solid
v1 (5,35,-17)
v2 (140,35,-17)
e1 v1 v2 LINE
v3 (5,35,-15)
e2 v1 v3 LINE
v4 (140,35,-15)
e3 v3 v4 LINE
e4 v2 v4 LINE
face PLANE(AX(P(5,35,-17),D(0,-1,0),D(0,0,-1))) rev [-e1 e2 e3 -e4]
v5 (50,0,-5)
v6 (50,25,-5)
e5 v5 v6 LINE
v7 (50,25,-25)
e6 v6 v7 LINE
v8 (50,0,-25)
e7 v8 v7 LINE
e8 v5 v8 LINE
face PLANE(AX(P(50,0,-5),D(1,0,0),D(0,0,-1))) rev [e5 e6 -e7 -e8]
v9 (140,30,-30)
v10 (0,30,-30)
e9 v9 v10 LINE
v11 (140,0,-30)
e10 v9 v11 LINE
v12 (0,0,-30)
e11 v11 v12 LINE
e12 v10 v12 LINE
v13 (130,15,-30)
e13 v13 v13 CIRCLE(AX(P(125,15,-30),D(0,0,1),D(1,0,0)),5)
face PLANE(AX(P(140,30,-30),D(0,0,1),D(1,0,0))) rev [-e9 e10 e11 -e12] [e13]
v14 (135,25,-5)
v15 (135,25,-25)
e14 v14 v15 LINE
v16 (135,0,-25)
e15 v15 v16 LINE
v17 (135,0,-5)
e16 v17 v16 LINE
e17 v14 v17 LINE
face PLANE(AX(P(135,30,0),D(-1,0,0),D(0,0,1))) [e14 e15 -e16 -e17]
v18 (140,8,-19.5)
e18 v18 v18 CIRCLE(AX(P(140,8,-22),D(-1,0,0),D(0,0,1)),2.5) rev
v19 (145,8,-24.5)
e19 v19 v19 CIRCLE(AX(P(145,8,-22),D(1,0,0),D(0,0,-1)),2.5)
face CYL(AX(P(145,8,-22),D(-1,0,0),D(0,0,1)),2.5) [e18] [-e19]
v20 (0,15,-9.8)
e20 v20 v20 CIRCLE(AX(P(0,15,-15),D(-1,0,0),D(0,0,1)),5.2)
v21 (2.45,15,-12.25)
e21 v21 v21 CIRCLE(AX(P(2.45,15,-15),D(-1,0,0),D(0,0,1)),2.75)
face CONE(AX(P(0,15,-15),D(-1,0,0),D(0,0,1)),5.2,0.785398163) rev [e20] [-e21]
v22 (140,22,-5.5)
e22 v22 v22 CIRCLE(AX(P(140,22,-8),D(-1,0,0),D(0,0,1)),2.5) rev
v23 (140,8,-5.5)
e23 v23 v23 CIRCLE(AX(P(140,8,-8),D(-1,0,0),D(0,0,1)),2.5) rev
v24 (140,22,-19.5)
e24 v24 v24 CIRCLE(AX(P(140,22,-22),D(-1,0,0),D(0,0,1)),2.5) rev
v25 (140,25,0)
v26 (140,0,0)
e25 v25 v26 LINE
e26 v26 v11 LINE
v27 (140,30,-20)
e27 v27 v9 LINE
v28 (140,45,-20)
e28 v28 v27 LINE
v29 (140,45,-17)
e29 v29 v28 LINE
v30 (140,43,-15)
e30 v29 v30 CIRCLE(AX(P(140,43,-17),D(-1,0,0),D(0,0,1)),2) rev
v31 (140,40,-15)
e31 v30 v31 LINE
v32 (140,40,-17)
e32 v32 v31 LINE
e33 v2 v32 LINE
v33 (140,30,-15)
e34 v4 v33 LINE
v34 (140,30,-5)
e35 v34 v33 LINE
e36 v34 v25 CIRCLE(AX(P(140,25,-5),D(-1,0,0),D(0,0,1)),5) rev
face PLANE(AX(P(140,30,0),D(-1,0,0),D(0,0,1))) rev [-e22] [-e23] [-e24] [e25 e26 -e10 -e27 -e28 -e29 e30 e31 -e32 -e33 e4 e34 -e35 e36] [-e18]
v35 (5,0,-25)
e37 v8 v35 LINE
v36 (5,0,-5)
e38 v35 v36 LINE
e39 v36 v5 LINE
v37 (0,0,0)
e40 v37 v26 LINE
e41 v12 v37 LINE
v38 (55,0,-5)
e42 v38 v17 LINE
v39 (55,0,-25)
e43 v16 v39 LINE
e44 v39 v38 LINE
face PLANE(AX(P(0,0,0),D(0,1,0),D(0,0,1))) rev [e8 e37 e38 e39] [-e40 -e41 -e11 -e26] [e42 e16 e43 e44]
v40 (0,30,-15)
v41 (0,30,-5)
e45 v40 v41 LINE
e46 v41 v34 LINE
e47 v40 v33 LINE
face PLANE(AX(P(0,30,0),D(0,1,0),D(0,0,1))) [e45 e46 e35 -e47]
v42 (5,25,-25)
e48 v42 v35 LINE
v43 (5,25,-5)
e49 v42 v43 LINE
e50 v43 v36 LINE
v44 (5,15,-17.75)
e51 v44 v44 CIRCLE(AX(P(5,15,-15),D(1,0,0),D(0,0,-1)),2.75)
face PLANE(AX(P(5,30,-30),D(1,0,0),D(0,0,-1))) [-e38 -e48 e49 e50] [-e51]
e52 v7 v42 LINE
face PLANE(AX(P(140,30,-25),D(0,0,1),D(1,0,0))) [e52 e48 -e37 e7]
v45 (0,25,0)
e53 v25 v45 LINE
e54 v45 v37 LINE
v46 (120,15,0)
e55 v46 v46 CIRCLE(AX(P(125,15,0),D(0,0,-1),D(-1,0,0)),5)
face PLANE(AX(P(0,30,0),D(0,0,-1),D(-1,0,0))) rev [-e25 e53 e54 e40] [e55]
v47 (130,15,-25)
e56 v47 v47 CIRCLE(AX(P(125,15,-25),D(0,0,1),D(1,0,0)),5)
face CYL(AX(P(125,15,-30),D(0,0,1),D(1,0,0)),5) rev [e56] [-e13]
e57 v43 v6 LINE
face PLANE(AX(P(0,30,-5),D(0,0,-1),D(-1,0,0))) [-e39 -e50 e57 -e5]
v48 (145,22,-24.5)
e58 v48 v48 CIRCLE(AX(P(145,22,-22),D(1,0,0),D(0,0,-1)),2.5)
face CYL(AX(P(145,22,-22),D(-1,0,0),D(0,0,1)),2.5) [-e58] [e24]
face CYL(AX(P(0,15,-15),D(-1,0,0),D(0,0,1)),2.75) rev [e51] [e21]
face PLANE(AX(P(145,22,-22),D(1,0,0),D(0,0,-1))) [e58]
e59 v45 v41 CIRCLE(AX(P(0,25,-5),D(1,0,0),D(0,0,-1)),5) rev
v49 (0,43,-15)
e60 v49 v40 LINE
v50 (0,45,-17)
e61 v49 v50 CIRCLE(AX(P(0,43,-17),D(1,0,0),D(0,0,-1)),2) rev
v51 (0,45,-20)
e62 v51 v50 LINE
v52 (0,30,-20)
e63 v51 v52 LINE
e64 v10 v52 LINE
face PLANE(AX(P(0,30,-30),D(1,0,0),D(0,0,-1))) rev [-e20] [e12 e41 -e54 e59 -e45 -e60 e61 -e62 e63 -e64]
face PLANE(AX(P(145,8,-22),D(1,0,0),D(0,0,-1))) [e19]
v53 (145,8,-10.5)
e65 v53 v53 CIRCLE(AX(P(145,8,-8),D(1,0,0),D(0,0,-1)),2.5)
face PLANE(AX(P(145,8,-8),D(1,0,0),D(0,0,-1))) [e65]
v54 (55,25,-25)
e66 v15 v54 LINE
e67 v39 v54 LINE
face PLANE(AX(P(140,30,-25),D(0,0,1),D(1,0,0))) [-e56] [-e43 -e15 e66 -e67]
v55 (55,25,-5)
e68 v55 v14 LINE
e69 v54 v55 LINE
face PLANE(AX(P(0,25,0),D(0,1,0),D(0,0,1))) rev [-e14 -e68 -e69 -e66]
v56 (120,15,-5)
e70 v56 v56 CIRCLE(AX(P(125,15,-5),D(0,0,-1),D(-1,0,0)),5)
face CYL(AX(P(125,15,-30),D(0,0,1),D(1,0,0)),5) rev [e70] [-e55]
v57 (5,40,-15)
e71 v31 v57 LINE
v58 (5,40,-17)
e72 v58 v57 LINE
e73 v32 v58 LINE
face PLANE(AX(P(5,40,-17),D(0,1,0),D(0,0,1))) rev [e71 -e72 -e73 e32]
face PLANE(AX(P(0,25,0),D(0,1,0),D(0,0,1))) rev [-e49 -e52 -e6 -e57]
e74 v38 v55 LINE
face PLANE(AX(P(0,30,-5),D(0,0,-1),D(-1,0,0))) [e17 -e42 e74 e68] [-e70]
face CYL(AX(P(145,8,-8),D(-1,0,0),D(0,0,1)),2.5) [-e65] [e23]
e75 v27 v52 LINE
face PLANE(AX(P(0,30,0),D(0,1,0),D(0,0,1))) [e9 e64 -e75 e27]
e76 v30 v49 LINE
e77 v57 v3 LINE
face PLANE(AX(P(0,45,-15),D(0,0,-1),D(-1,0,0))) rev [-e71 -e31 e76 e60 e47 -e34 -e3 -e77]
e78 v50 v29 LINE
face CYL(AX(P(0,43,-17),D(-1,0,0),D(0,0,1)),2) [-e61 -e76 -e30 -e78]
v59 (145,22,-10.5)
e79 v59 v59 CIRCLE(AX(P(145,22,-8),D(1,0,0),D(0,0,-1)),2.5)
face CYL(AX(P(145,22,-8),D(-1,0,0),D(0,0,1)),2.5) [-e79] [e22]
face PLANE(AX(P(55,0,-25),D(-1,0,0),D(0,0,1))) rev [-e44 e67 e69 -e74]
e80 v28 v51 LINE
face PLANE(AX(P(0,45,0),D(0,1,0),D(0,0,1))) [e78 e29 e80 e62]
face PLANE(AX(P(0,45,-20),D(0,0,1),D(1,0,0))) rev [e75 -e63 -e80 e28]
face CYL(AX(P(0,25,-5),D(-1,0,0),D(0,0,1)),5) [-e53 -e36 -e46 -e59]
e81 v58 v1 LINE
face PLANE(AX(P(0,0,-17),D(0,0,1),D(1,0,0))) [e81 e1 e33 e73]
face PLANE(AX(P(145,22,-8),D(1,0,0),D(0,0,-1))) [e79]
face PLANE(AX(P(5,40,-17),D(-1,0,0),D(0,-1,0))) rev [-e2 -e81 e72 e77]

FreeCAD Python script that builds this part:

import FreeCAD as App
import Part
import Sketcher
from FreeCAD import Vector


def edges_at(feature, points):
    """Names of the edges that pass closest to the given points."""
    edges = feature.Shape.Edges
    near = lambda p: min(range(len(edges)), key=lambda i: edges[i].distToShape(Part.Vertex(*p))[0])
    return sorted({f"Edge{near(p) + 1}" for p in points})


def faces_at(feature, points):
    """Names of the faces that lie closest to the given points."""
    faces = feature.Shape.Faces
    near = lambda p: min(range(len(faces)), key=lambda i: faces[i].distToShape(Part.Vertex(*p))[0])
    return sorted({f"Face{near(p) + 1}" for p in points})


def add_polygon(sketch, points):
    """Adds a closed chain of lines whose ends are joined by coincident constraints."""
    first, n = sketch.GeometryCount, len(points)
    for a, b in zip(points, points[1:] + points[:1]):
        sketch.addGeometry(Part.LineSegment(App.Vector(*a, 0), App.Vector(*b, 0)), False)
    for i in range(n):
        sketch.addConstraint(Sketcher.Constraint("Coincident", first + i, 2, first + (i + 1) % n, 1))

doc = App.newDocument("Part")
params = doc.addObject("Spreadsheet::Sheet", "Params")
for row, (alias, value) in enumerate([
    ("sketch1_width", "140 mm"),
    ("sketch1_height", "30 mm"),
    ("pad1_length", "30 mm"),
    ("thickness_wall", "5 mm"),
    ("sketch2_width", "5 mm"),
    ("sketch2_height", "20 mm"),
    ("pad2_length", "25 mm"),
    ("sketch3_diameter", "5 mm"),
    ("pad3_length", "5 mm"),
    ("sketch4_diameter", "3 mm"),
    ("pocket1_length", "20 mm"),
    ("sketch5_diameter", "10 mm"),
    ("sketch6_width", "140 mm"),
    ("sketch6_height", "5 mm"),
    ("pad4_length", "15 mm"),
    ("sketch7_width", "135 mm"),
    ("sketch7_height", "5 mm"),
    ("pocket3_length", "2 mm"),
    ("fillet_radius", "2 mm"),
    ("sketch8_diameter", "5.5 mm"),
    ("hole_diameter", "5.5 mm"),
    ("hole_depth", "20 mm"),
    ("hole_csink_diameter", "10.4 mm"),
    ("fillet2_radius", "5 mm"),
], start=1):
    params.set(f"A{row}", alias)
    params.set(f"B{row}", "=" + value)
    params.setAlias(f"B{row}", alias)

body = doc.addObject("PartDesign::Body", "Body")

# Sketch on XZ plane
sketch1 = doc.addObject("Sketcher::SketchObject", "Sketch")
body.addObject(sketch1)
sketch1.AttachmentSupport = (doc.XZ_Plane, [""])
sketch1.MapMode = "FlatFace"
add_polygon(sketch1, [(0, -30), (0, 0), (140, 0), (140, -30)])  # lines 0-3
sketch1.addConstraint([
    Sketcher.Constraint("Vertical", 0),
    Sketcher.Constraint("Horizontal", 1),
    Sketcher.Constraint("Vertical", 2),
    Sketcher.Constraint("Horizontal", 3),
    Sketcher.Constraint("Coincident", 0, 2, -1, 1),
    Sketcher.Constraint("DistanceX", 1, 1, 1, 2, 140.0),
    Sketcher.Constraint("DistanceY", 0, 1, 0, 2, 30.0),
])
sketch1.setExpression("Constraints[9]", "Params.sketch1_width")
sketch1.setExpression("Constraints[10]", "Params.sketch1_height")
pad1 = doc.addObject("PartDesign::Pad", "Pad")
body.addObject(pad1)
pad1.Profile = sketch1
pad1.setExpression("Length", "Params.pad1_length")
pad1.Reversed = True
doc.recompute()

thickness = doc.addObject("PartDesign::Thickness", "Thickness")
body.addObject(thickness)
thickness.Base = (pad1, faces_at(pad1, [(70, 0, -15)]))
thickness.setExpression("Value", "Params.thickness_wall")
thickness.Reversed = True
thickness.Join = "Intersection"

# Sketch on XZ plane
sketch2 = doc.addObject("Sketcher::SketchObject", "Sketch001")
body.addObject(sketch2)
sketch2.AttachmentSupport = (doc.XZ_Plane, [""])
sketch2.MapMode = "FlatFace"
sketch2.AttachmentOffset = App.Placement(Vector(0, 0, -25), App.Rotation())
add_polygon(sketch2, [(50, -5), (50, -25), (55, -25), (55, -5)])  # lines 0-3
sketch2.addConstraint([
    Sketcher.Constraint("Vertical", 0),
    Sketcher.Constraint("Horizontal", 1),
    Sketcher.Constraint("Vertical", 2),
    Sketcher.Constraint("Horizontal", 3),
    Sketcher.Constraint("DistanceX", 1, 1, 1, 2, 5.0),
    Sketcher.Constraint("DistanceY", 0, 2, 0, 1, 20.0),
    Sketcher.Constraint("DistanceX", -1, 1, 0, 2, 50.0),
    Sketcher.Constraint("DistanceY", 0, 2, -1, 1, 25.0),
])
sketch2.setExpression("Constraints[8]", "Params.sketch2_width")
sketch2.setExpression("Constraints[9]", "Params.sketch2_height")
pad2 = doc.addObject("PartDesign::Pad", "Pad001")
body.addObject(pad2)
pad2.Profile = sketch2
pad2.setExpression("Length", "Params.pad2_length")

# Sketch on YZ plane
sketch3 = doc.addObject("Sketcher::SketchObject", "Sketch002")
body.addObject(sketch3)
sketch3.AttachmentSupport = (doc.YZ_Plane, [""])
sketch3.MapMode = "FlatFace"
sketch3.AttachmentOffset = App.Placement(Vector(0, 0, 140), App.Rotation())
sketch3.addGeometry([
    Part.Circle(Vector(22, -8, 0), Vector(0, 0, 1), 2.5),
    Part.Circle(Vector(22, -22, 0), Vector(0, 0, 1), 2.5),
    Part.Circle(Vector(8, -8, 0), Vector(0, 0, 1), 2.5),
    Part.Circle(Vector(8, -22, 0), Vector(0, 0, 1), 2.5),
], False)
sketch3.addConstraint([
    Sketcher.Constraint("Equal", 0, 1),
    Sketcher.Constraint("Equal", 1, 2),
    Sketcher.Constraint("Equal", 2, 3),
    Sketcher.Constraint("Horizontal", 0, 3, 2, 3),
    Sketcher.Constraint("Horizontal", 1, 3, 3, 3),
    Sketcher.Constraint("Vertical", 0, 3, 1, 3),
    Sketcher.Constraint("Vertical", 2, 3, 3, 3),
    Sketcher.Constraint("Diameter", 0, 5.0),
    Sketcher.Constraint("DistanceX", -1, 1, 0, 3, 22.0),
    Sketcher.Constraint("DistanceY", 0, 3, -1, 1, 8.0),
    Sketcher.Constraint("DistanceY", 1, 3, -1, 1, 22.0),
    Sketcher.Constraint("DistanceX", -1, 1, 2, 3, 8.0),
])
sketch3.setExpression("Constraints[7]", "Params.sketch3_diameter")
pad3 = doc.addObject("PartDesign::Pad", "Pad002")
body.addObject(pad3)
pad3.Profile = sketch3
pad3.setExpression("Length", "Params.pad3_length")

# Sketch on YZ plane
sketch4 = doc.addObject("Sketcher::SketchObject", "Sketch003")
body.addObject(sketch4)
sketch4.AttachmentSupport = (doc.YZ_Plane, [""])
sketch4.MapMode = "FlatFace"
sketch4.addGeometry(Part.Circle(Vector(15, -15, 0), Vector(0, 0, 1), 1.5), False)
sketch4.addConstraint([
    Sketcher.Constraint("Diameter", 0, 3.0),
    Sketcher.Constraint("DistanceX", -1, 1, 0, 3, 15.0),
    Sketcher.Constraint("DistanceY", 0, 3, -1, 1, 15.0),
])
sketch4.setExpression("Constraints[0]", "Params.sketch4_diameter")
pocket1 = doc.addObject("PartDesign::Pocket", "Pocket")
body.addObject(pocket1)
pocket1.Profile = sketch4
pocket1.setExpression("Length", "Params.pocket1_length")
pocket1.Reversed = True

# Sketch on XY plane
sketch5 = doc.addObject("Sketcher::SketchObject", "Sketch004")
body.addObject(sketch5)
sketch5.AttachmentSupport = (doc.XY_Plane, [""])
sketch5.MapMode = "FlatFace"
sketch5.addGeometry(Part.Circle(Vector(125, 15, 0), Vector(0, 0, 1), 5), False)
sketch5.addConstraint([
    Sketcher.Constraint("Diameter", 0, 10.0),
    Sketcher.Constraint("DistanceX", -1, 1, 0, 3, 125.0),
    Sketcher.Constraint("DistanceY", -1, 1, 0, 3, 15.0),
])
sketch5.setExpression("Constraints[0]", "Params.sketch5_diameter")
pocket2 = doc.addObject("PartDesign::Pocket", "Pocket001")
body.addObject(pocket2)
pocket2.Profile = sketch5
pocket2.Type = "ThroughAll"
pocket2.Midplane = True

# Sketch on XZ plane
sketch6 = doc.addObject("Sketcher::SketchObject", "Sketch005")
body.addObject(sketch6)
sketch6.AttachmentSupport = (doc.XZ_Plane, [""])
sketch6.MapMode = "FlatFace"
sketch6.AttachmentOffset = App.Placement(Vector(0, 0, -30), App.Rotation())
add_polygon(sketch6, [(0, -20), (0, -15), (140, -15), (140, -20)])  # lines 0-3
sketch6.addConstraint([
    Sketcher.Constraint("Vertical", 0),
    Sketcher.Constraint("Horizontal", 1),
    Sketcher.Constraint("Vertical", 2),
    Sketcher.Constraint("Horizontal", 3),
    Sketcher.Constraint("PointOnObject", 0, 2, -2),
    Sketcher.Constraint("DistanceX", 1, 1, 1, 2, 140.0),
    Sketcher.Constraint("DistanceY", 0, 1, 0, 2, 5.0),
    Sketcher.Constraint("DistanceY", 0, 2, -1, 1, 15.0),
])
sketch6.setExpression("Constraints[9]", "Params.sketch6_width")
sketch6.setExpression("Constraints[10]", "Params.sketch6_height")
pad4 = doc.addObject("PartDesign::Pad", "Pad003")
body.addObject(pad4)
pad4.Profile = sketch6
pad4.setExpression("Length", "Params.pad4_length")
pad4.Reversed = True

# Sketch on XY plane
sketch7 = doc.addObject("Sketcher::SketchObject", "Sketch006")
body.addObject(sketch7)
sketch7.AttachmentSupport = (doc.XY_Plane, [""])
sketch7.MapMode = "FlatFace"
sketch7.AttachmentOffset = App.Placement(Vector(0, 0, -15), App.Rotation())
add_polygon(sketch7, [(5, 40), (5, 35), (140, 35), (140, 40)])  # lines 0-3
sketch7.addConstraint([
    Sketcher.Constraint("Vertical", 0),
    Sketcher.Constraint("Horizontal", 1),
    Sketcher.Constraint("Vertical", 2),
    Sketcher.Constraint("Horizontal", 3),
    Sketcher.Constraint("DistanceX", 1, 1, 1, 2, 135.0),
    Sketcher.Constraint("DistanceY", 0, 2, 0, 1, 5.0),
    Sketcher.Constraint("DistanceX", -1, 1, 0, 2, 5.0),
    Sketcher.Constraint("DistanceY", -1, 1, 0, 2, 35.0),
])
sketch7.setExpression("Constraints[8]", "Params.sketch7_width")
sketch7.setExpression("Constraints[9]", "Params.sketch7_height")
pocket3 = doc.addObject("PartDesign::Pocket", "Pocket002")
body.addObject(pocket3)
pocket3.Profile = sketch7
pocket3.setExpression("Length", "Params.pocket3_length")
doc.recompute()

fillet = doc.addObject("PartDesign::Fillet", "Fillet")
body.addObject(fillet)
fillet.Base = (pocket3, edges_at(pocket3, [(70, 45, -15)]))
fillet.setExpression("Radius", "Params.fillet_radius")

# Sketch on YZ plane
sketch8 = doc.addObject("Sketcher::SketchObject", "Sketch007")
body.addObject(sketch8)
sketch8.AttachmentSupport = (doc.YZ_Plane, [""])
sketch8.MapMode = "FlatFace"
sketch8.addGeometry(Part.Circle(Vector(15, -15, 0), Vector(0, 0, 1), 2.8), False)
sketch8.addConstraint([
    Sketcher.Constraint("Diameter", 0, 5.5),
    Sketcher.Constraint("DistanceX", -1, 1, 0, 3, 15.0),
    Sketcher.Constraint("DistanceY", 0, 3, -1, 1, 15.0),
])
sketch8.setExpression("Constraints[0]", "Params.sketch8_diameter")
doc.recompute()
hole = doc.addObject("PartDesign::Hole", "Hole")
body.addObject(hole)
hole.Profile = sketch8
hole.ThreadType = "None"
hole.setExpression("Diameter", "Params.hole_diameter")
hole.DepthType = "Dimension"
hole.setExpression("Depth", "Params.hole_depth")
hole.DrillPoint = "Angled"
hole.DrillPointAngle = 118
hole.HoleCutType = "Countersink"
hole.setExpression("HoleCutDiameter", "Params.hole_csink_diameter")
hole.HoleCutCountersinkAngle = 90
hole.Reversed = True
doc.recompute()

fillet2 = doc.addObject("PartDesign::Fillet", "Fillet001")
body.addObject(fillet2)
fillet2.Base = (hole, edges_at(hole, [(70, 30, 0)]))
fillet2.setExpression("Radius", "Params.fillet2_radius")

doc.recompute()
